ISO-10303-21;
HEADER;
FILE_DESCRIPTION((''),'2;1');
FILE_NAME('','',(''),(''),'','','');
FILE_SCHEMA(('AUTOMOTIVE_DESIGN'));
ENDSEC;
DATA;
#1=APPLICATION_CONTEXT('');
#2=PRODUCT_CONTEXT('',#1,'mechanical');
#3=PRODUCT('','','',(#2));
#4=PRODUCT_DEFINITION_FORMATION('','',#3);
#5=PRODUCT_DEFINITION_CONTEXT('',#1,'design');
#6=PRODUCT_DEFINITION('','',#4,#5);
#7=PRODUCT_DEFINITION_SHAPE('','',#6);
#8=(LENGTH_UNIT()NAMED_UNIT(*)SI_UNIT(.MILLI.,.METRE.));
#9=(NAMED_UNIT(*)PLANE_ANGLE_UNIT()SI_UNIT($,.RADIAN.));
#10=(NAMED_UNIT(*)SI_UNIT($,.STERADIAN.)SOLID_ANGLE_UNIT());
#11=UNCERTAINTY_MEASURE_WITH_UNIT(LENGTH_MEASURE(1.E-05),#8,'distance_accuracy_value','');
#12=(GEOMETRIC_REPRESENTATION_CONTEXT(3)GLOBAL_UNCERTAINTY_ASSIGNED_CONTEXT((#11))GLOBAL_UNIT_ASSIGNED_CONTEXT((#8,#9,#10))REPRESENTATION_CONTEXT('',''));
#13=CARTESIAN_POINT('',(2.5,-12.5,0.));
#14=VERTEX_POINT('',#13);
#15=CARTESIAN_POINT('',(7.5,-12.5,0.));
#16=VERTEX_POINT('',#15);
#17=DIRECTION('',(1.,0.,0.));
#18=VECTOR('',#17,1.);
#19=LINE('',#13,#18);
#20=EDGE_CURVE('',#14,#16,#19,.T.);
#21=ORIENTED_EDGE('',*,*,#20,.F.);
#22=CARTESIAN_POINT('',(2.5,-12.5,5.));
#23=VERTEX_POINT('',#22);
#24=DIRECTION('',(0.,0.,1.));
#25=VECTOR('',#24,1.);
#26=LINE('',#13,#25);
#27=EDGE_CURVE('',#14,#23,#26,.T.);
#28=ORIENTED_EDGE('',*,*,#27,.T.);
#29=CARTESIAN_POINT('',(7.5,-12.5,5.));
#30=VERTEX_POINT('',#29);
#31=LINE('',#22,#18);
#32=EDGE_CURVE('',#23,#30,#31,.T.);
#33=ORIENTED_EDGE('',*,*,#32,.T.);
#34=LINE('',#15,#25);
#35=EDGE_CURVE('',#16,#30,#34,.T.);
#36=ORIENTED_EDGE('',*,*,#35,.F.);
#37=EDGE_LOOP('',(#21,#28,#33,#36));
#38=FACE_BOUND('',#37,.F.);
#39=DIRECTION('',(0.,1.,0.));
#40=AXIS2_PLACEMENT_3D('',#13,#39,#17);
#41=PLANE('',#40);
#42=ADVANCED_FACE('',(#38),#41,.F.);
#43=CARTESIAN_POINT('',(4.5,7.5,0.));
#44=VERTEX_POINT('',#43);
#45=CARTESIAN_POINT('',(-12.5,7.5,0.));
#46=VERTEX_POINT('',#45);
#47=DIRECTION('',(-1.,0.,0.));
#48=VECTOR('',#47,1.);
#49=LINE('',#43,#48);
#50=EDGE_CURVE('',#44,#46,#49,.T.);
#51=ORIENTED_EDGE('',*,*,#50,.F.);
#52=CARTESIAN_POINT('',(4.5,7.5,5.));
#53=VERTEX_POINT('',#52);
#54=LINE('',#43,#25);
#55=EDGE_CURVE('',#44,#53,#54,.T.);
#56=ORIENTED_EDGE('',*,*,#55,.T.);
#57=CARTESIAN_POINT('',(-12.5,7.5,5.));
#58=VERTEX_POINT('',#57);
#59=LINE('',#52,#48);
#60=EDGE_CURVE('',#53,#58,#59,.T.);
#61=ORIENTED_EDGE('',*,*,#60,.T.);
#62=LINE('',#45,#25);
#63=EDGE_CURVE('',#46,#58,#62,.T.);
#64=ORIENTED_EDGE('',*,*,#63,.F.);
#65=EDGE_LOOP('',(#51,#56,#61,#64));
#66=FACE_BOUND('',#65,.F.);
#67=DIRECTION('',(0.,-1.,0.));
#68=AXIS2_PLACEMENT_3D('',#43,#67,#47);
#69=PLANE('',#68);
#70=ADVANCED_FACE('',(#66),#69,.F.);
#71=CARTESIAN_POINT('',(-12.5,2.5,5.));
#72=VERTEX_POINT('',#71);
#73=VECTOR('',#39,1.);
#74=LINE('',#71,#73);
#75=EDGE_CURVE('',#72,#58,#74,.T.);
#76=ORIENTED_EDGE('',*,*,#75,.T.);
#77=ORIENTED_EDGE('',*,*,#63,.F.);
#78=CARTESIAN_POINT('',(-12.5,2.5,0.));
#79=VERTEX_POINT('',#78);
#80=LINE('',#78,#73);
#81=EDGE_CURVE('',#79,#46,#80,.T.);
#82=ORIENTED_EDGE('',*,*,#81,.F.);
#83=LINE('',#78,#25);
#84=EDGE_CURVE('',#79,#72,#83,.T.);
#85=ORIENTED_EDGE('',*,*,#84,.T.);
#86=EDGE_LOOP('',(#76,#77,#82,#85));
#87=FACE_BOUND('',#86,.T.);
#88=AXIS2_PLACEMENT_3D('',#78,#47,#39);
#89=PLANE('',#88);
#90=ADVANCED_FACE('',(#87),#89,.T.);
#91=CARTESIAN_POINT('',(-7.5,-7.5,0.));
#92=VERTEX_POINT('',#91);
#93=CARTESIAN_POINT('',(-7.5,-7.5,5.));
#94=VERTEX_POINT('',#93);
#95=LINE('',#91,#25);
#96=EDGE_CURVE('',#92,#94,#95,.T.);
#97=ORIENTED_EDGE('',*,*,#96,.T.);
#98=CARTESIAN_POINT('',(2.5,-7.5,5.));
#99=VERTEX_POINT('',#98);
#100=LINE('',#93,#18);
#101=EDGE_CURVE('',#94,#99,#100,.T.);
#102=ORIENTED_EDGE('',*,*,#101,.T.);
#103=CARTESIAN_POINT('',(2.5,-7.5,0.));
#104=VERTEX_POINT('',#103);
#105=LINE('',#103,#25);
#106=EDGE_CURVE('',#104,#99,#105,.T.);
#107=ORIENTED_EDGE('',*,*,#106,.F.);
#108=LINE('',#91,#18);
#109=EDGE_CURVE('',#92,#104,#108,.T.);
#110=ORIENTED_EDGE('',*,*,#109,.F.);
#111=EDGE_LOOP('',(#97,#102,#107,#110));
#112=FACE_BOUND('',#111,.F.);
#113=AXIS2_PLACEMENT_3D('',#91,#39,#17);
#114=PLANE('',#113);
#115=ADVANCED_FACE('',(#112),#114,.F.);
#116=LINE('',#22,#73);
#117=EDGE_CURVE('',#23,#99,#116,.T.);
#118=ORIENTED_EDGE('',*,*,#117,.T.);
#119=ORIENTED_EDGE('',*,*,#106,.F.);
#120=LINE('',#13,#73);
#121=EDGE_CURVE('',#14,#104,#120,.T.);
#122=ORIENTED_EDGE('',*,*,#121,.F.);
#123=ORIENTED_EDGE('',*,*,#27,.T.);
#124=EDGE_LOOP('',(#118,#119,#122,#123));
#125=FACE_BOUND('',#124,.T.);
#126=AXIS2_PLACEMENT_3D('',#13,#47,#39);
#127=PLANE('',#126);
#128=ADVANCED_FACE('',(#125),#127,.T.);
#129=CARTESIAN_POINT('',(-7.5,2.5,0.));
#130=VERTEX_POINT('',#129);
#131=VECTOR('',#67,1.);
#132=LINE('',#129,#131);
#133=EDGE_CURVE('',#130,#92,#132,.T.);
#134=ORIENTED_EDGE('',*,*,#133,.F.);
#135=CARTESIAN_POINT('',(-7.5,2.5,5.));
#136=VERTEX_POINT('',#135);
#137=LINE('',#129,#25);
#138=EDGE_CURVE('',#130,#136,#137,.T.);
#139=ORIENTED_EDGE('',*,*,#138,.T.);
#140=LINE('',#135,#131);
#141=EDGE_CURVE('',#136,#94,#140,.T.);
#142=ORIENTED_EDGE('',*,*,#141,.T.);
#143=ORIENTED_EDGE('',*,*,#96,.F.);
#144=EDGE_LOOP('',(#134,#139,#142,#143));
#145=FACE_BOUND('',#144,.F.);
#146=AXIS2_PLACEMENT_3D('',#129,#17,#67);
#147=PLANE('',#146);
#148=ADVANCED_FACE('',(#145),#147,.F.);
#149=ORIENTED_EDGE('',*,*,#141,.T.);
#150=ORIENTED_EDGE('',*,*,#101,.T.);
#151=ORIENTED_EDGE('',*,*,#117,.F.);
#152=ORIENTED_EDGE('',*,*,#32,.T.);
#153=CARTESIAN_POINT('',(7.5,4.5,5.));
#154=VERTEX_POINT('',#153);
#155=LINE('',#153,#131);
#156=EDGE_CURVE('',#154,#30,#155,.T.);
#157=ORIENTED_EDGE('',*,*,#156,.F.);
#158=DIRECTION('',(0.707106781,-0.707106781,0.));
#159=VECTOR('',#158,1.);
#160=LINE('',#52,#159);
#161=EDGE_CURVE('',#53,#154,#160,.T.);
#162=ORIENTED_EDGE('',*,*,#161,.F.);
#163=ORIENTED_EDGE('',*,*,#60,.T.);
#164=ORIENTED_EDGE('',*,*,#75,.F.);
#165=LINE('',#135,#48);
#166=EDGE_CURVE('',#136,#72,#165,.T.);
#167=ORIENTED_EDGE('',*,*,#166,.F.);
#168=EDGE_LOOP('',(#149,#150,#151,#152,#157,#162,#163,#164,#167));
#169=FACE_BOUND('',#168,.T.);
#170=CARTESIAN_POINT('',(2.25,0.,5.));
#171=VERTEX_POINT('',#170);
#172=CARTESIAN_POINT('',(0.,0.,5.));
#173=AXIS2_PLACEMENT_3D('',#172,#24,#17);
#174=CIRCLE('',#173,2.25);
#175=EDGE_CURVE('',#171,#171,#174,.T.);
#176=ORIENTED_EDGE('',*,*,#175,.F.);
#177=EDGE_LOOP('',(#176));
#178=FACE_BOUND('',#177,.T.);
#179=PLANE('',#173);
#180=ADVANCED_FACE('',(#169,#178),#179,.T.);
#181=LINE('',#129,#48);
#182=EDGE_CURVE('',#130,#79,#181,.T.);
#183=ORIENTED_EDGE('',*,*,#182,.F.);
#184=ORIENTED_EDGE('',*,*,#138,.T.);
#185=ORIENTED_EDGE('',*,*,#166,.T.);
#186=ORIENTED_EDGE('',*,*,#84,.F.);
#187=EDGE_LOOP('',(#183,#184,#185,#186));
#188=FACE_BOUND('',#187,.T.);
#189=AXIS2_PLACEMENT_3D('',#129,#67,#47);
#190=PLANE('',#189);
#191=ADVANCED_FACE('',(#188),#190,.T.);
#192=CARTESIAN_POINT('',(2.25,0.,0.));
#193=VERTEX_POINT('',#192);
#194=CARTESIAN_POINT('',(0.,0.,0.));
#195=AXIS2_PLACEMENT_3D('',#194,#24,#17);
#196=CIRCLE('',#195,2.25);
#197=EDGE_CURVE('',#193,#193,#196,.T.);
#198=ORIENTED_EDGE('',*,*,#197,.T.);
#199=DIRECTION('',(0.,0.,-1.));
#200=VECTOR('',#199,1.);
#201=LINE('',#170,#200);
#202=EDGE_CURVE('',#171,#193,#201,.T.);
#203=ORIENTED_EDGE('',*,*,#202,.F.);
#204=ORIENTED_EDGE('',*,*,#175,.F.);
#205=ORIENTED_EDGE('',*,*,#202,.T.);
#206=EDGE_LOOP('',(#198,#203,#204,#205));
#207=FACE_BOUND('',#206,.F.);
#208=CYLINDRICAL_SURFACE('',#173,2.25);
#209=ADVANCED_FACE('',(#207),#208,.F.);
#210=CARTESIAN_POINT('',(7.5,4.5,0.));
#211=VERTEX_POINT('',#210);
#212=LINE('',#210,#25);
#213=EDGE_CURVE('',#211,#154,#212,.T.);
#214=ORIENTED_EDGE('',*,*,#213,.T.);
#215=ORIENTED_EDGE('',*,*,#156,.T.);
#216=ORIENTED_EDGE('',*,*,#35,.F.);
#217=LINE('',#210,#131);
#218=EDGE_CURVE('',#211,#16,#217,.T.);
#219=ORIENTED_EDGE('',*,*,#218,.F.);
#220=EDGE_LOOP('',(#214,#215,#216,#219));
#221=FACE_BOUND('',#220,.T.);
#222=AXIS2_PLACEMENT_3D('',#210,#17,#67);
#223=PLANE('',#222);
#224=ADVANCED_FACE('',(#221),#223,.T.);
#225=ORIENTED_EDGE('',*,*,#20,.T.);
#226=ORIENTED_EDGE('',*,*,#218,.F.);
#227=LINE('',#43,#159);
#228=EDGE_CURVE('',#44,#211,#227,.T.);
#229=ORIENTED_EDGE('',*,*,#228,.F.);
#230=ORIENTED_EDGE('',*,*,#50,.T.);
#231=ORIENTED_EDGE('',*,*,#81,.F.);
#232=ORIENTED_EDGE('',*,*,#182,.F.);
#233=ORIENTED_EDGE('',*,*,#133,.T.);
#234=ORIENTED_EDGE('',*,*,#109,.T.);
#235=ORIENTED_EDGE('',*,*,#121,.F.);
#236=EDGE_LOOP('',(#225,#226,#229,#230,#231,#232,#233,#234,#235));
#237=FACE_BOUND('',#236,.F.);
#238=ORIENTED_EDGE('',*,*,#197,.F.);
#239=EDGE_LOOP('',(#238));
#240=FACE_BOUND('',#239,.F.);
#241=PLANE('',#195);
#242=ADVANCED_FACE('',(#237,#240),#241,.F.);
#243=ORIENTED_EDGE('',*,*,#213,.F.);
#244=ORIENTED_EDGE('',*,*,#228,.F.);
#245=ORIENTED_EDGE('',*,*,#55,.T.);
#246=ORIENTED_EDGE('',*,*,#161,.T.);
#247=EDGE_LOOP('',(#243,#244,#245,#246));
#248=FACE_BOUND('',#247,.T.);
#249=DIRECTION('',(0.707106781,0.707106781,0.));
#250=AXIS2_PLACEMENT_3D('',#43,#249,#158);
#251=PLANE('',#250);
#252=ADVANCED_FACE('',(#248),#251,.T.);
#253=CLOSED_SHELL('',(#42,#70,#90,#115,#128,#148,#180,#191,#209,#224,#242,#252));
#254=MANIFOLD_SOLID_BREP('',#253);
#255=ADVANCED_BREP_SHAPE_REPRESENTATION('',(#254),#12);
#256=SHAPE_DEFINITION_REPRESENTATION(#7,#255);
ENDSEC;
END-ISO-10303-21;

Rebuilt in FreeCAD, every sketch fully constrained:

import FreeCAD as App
import Part
import Sketcher

V = App.Vector


def add_polygon(sketch, points):
    """Adds a closed chain of lines whose ends are joined by coincident constraints."""
    first, n = sketch.GeometryCount, len(points)
    for a, b in zip(points, points[1:] + points[:1]):
        sketch.addGeometry(Part.LineSegment(App.Vector(*a, 0), App.Vector(*b, 0)), False)
    for i in range(n):
        sketch.addConstraint(Sketcher.Constraint("Coincident", first + i, 2, first + (i + 1) % n, 1))

doc = App.newDocument("Part")
body = doc.addObject("PartDesign::Body", "Body")

sketch1 = doc.addObject("Sketcher::SketchObject", "Sketch")
body.addObject(sketch1)
sketch1.AttachmentSupport = (doc.XY_Plane, [""])
sketch1.MapMode = "FlatFace"
add_polygon(sketch1, [(7.5, 4.5), (4.5, 7.5), (-12.5, 7.5), (-12.5, 2.5), (-7.5, 2.5), (-7.5, -7.5), (2.5, -7.5), (2.5, -12.5), (7.5, -12.5)])
sketch1.addConstraint([
    Sketcher.Constraint("Horizontal", 1),
    Sketcher.Constraint("Vertical", 2),
    Sketcher.Constraint("Horizontal", 3),
    Sketcher.Constraint("Vertical", 4),
    Sketcher.Constraint("Horizontal", 5),
    Sketcher.Constraint("Vertical", 6),
    Sketcher.Constraint("Horizontal", 7),
    Sketcher.Constraint("Vertical", 8),
    Sketcher.Constraint("Equal", 3, 7),
    Sketcher.Constraint("Equal", 7, 2),
    Sketcher.Constraint("Equal", 5, 4),
    Sketcher.Constraint("Equal", 2, 6),
    Sketcher.Constraint("Equal", 1, 8),
    Sketcher.Constraint("DistanceX", 1, 2, 1, 1, 17.0),
    Sketcher.Constraint("DistanceX", 3, 1, 3, 2, 5.0),
    Sketcher.Constraint("DistanceX", 5, 1, 5, 2, 10.0),
    Sketcher.Constraint("DistanceX", -1, 1, 0, 2, 4.5),
    Sketcher.Constraint("DistanceY", -1, 1, 0, 2, 7.5),
])
pad1 = doc.addObject("PartDesign::Pad", "Pad")
body.addObject(pad1)
pad1.Profile = sketch1
pad1.Length = 5

sketch2 = doc.addObject("Sketcher::SketchObject", "Sketch001")
body.addObject(sketch2)
sketch2.AttachmentSupport = (doc.XY_Plane, [""])
sketch2.MapMode = "FlatFace"
sketch2.AttachmentOffset = App.Placement(V(0, 0, 5), App.Rotation())
sketch2.addGeometry(Part.Circle(V(0, 0, 0), V(0, 0, 1), 2.2), False)
sketch2.addConstraint([
    Sketcher.Constraint("Coincident", 0, 3, -1, 1),
    Sketcher.Constraint("Diameter", 0, 4.5),
])
pocket1 = doc.addObject("PartDesign::Pocket", "Pocket")
body.addObject(pocket1)
pocket1.Profile = sketch2
pocket1.Length = 5

doc.recompute()
